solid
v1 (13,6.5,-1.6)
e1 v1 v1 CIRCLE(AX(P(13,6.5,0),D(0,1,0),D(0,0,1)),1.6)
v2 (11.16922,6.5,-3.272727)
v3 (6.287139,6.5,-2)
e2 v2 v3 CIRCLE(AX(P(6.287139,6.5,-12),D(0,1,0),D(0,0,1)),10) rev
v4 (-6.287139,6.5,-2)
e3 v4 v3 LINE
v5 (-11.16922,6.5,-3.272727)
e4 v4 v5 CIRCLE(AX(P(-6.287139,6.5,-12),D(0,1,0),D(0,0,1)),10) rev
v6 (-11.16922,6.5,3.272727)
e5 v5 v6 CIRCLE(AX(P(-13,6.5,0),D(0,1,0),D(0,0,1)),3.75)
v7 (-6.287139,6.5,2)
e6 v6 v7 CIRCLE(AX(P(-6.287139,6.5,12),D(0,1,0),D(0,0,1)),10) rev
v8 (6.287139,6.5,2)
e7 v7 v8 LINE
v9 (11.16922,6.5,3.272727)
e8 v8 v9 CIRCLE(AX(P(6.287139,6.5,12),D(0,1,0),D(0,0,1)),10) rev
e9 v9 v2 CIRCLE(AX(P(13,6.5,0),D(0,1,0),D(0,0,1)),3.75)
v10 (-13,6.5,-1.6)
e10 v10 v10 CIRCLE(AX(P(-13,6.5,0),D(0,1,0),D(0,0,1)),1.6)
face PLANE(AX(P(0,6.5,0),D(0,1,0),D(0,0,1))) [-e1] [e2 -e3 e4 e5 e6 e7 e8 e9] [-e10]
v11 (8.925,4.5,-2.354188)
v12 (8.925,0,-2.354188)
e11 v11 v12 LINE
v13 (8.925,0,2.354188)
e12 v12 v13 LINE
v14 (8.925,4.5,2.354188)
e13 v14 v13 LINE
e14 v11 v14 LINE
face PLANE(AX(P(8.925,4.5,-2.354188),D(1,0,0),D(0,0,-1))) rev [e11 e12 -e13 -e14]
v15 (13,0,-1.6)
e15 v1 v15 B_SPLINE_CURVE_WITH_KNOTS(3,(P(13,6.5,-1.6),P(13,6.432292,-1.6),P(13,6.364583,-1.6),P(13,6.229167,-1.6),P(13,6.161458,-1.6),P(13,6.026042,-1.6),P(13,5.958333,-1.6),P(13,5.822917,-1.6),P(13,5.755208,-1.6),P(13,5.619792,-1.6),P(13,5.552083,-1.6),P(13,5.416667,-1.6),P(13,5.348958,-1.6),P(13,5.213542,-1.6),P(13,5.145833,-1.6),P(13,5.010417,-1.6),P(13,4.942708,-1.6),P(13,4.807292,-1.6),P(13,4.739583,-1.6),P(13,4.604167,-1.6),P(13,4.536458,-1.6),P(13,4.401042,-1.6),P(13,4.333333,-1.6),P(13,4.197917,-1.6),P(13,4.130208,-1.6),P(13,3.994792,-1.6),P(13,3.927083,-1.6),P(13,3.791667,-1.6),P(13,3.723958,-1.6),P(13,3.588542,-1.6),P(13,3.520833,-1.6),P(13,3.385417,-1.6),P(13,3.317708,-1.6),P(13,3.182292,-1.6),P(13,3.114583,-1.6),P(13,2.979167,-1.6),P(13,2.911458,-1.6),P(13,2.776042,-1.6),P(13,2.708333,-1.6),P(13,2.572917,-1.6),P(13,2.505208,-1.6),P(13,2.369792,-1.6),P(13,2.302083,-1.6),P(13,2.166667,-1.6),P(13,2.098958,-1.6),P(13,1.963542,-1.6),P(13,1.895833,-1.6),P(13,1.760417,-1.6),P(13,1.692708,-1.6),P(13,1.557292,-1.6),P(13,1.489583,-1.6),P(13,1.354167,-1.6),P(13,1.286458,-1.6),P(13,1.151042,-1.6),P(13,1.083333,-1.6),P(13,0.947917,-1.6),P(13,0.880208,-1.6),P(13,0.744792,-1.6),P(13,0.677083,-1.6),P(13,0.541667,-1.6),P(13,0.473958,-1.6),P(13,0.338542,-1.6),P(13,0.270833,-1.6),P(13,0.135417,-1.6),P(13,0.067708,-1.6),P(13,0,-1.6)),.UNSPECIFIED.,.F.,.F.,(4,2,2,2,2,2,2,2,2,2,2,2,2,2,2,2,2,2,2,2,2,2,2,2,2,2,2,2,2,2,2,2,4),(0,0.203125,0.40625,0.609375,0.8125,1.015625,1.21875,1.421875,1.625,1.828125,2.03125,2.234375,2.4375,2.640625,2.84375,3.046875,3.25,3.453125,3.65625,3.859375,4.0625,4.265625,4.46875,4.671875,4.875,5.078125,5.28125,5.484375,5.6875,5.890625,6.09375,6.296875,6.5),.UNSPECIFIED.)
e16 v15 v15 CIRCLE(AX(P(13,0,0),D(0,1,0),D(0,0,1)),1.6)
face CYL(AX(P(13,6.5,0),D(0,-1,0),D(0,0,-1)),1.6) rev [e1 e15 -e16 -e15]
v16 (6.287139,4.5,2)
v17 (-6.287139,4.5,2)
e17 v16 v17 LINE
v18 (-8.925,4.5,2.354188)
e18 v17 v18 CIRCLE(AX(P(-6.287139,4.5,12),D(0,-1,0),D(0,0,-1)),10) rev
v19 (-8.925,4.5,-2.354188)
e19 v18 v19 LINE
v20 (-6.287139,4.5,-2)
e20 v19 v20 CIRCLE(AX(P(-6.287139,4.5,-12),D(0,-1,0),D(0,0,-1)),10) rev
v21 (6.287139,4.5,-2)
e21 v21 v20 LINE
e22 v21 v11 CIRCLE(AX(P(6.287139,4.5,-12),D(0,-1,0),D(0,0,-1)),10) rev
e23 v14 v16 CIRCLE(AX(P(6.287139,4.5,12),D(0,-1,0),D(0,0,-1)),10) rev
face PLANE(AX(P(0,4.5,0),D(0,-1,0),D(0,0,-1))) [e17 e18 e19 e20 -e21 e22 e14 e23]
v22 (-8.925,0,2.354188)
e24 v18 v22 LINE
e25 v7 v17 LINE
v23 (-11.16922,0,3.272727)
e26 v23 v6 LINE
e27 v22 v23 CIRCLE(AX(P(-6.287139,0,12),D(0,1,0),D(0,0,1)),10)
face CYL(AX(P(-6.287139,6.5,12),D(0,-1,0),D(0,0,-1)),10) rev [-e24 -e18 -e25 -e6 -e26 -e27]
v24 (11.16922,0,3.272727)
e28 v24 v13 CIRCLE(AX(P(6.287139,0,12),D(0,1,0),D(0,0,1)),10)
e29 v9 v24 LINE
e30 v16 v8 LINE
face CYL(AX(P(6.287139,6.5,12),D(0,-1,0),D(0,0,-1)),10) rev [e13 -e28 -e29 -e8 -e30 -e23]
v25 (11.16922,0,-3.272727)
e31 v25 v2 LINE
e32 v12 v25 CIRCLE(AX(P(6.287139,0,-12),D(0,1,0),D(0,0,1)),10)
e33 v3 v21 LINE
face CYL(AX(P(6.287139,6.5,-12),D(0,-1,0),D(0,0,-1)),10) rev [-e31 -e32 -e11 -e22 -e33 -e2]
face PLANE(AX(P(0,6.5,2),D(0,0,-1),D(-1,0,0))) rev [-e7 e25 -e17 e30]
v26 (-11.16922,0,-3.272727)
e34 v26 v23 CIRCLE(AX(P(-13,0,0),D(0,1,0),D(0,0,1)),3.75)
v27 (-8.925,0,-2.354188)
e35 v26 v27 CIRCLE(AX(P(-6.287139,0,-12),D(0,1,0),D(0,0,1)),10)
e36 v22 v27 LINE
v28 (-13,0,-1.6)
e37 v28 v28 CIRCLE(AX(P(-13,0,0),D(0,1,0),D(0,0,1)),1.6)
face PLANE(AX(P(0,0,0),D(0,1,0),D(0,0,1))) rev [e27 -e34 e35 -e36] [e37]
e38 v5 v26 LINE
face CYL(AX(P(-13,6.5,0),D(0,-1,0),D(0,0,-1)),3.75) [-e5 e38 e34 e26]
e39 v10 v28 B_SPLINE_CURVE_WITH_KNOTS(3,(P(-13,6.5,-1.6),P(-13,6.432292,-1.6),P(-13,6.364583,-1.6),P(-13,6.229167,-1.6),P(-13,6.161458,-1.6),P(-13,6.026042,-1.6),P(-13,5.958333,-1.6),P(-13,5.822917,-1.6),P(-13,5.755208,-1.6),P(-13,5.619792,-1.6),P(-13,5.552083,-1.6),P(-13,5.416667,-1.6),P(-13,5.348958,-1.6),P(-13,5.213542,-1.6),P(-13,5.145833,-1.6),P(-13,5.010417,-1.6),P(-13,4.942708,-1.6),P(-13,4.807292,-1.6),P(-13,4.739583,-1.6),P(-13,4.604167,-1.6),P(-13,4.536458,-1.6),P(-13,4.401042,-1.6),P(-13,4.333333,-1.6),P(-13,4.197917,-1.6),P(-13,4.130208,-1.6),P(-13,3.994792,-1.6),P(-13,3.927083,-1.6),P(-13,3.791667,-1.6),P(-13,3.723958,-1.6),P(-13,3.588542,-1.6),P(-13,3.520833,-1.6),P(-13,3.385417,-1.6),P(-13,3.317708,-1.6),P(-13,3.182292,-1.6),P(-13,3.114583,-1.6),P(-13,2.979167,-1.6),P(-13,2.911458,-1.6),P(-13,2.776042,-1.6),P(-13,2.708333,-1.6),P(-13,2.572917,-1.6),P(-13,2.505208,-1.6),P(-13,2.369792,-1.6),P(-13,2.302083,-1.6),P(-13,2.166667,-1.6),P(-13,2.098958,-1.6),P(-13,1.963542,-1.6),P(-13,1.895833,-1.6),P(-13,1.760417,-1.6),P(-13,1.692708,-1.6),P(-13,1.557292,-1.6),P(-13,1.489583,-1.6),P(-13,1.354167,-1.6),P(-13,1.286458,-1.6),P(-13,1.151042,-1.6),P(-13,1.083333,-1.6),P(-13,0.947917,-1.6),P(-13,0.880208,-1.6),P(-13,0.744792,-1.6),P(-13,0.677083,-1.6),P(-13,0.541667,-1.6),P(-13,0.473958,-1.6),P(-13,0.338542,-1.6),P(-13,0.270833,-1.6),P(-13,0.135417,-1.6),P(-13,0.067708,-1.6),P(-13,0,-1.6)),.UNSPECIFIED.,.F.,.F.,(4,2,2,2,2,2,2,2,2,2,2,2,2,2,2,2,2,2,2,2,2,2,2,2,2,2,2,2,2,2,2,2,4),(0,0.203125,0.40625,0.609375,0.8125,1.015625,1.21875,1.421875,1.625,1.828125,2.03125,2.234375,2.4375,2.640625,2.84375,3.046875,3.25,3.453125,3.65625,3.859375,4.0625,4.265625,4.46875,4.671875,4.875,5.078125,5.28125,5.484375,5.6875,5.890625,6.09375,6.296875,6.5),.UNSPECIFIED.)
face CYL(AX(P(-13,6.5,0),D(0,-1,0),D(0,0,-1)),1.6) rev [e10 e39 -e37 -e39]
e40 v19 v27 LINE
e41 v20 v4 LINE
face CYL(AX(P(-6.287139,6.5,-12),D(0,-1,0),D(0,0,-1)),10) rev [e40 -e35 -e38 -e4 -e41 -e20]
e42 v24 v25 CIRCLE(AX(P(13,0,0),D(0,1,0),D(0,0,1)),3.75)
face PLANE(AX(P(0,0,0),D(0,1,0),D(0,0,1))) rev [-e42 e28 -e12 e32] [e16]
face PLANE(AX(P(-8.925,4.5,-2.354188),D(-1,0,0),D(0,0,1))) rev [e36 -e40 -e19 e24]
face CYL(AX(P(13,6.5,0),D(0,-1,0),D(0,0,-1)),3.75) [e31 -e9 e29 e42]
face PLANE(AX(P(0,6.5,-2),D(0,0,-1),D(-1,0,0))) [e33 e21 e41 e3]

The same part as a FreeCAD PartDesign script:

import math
import FreeCAD as App
import Part
import Sketcher
from FreeCAD import Vector
Q = App.Units.Quantity


def edges_at(feature, points):
    """Names of the edges that pass closest to the given points."""
    edges = feature.Shape.Edges
    near = lambda p: min(range(len(edges)), key=lambda i: edges[i].distToShape(Part.Vertex(*p))[0])
    return sorted({f"Edge{near(p) + 1}" for p in points})


def add_polygon(sketch, points):
    """Adds a closed chain of lines whose ends are joined by coincident constraints."""
    first, n = sketch.GeometryCount, len(points)
    for a, b in zip(points, points[1:] + points[:1]):
        sketch.addGeometry(Part.LineSegment(App.Vector(*a, 0), App.Vector(*b, 0)), False)
    for i in range(n):
        sketch.addConstraint(Sketcher.Constraint("Coincident", first + i, 2, first + (i + 1) % n, 1))

doc = App.newDocument("Part")
params = doc.addObject("Spreadsheet::Sheet", "Params")
for row, (alias, value) in enumerate([
    ("sketch1_diameter", "3.2 mm"),
    ("sketch1_radius", "3.75 mm"),
    ("pad1_length", "6.5 mm"),
    ("fillet_radius", "10 mm"),
    ("sketch2_width", "17.85 mm"),
    ("pocket1_length", "4.5 mm"),
], start=1):
    params.set(f"A{row}", alias)
    params.set(f"B{row}", "=" + value)
    params.setAlias(f"B{row}", alias)

body = doc.addObject("PartDesign::Body", "Body")

# Sketch on XZ plane
sketch1 = doc.addObject("Sketcher::SketchObject", "Sketch")
body.addObject(sketch1)
sketch1.AttachmentSupport = (doc.XZ_Plane, [""])
sketch1.MapMode = "FlatFace"
sketch1.addGeometry([
    Part.LineSegment(Vector(9.8, -2, 0), Vector(-9.8, -2, 0)),  # 0
    Part.ArcOfCircle(Part.Circle(Vector(-13, 0, 0), Vector(0, 0, 1), 3.8), math.radians(32), math.radians(328)),  # 1
    Part.LineSegment(Vector(-9.8, 2, 0), Vector(9.8, 2, 0)),  # 2
    Part.ArcOfCircle(Part.Circle(Vector(13, 0, 0), Vector(0, 0, 1), 3.8), math.radians(-148), math.radians(148)),  # 3
    Part.Circle(Vector(-13, 0, 0), Vector(0, 0, 1), 1.6),  # 4
    Part.Circle(Vector(13, 0, 0), Vector(0, 0, 1), 1.6),  # 5
], False)
sketch1.addConstraint([
    Sketcher.Constraint("Coincident", 0, 2, 1, 2),
    Sketcher.Constraint("Coincident", 1, 1, 2, 1),
    Sketcher.Constraint("Coincident", 2, 2, 3, 2),
    Sketcher.Constraint("Coincident", 3, 1, 0, 1),
    Sketcher.Constraint("Horizontal", 0),
    Sketcher.Constraint("Horizontal", 2),
    Sketcher.Constraint("Coincident", 4, 3, 1, 3),
    Sketcher.Constraint("Coincident", 5, 3, 3, 3),
    Sketcher.Constraint("Equal", 1, 3),
    Sketcher.Constraint("Equal", 4, 5),
    Sketcher.Constraint("Symmetric", 1, 3, 3, 3, -1, 1),
    Sketcher.Constraint("Symmetric", 0, 2, 1, 1, -1),
    Sketcher.Constraint("Diameter", 4, Q("3.2 mm")),
    Sketcher.Constraint("Radius", 1, Q("3.75 mm")),
    Sketcher.Constraint("DistanceX", 1, 3, -1, 1, Q("13 mm")),
    Sketcher.Constraint("DistanceY", 0, 2, -1, 1, Q("2 mm")),
])
sketch1.setExpression("Constraints[12]", "Params.sketch1_diameter")
sketch1.setExpression("Constraints[13]", "Params.sketch1_radius")
pad1 = doc.addObject("PartDesign::Pad", "Pad")
body.addObject(pad1)
pad1.Profile = sketch1
pad1.setExpression("Length", "Params.pad1_length")
pad1.Reversed = True
doc.recompute()

fillet = doc.addObject("PartDesign::Fillet", "Fillet")
body.addObject(fillet)
fillet.Base = (pad1, edges_at(pad1, [
    (-9.828, 3.25, -2),
    (9.828, 3.25, -2),
    (9.828, 3.25, 2),
    (-9.828, 3.25, 2),
]))
fillet.setExpression("Radius", "Params.fillet_radius")

# Sketch on XZ plane
sketch2 = doc.addObject("Sketcher::SketchObject", "Sketch001")
body.addObject(sketch2)
sketch2.AttachmentSupport = (doc.XZ_Plane, [""])
sketch2.MapMode = "FlatFace"
add_polygon(sketch2, [(8.9, -2.4), (8.9, 2.4), (-8.9, 2.4), (-8.9, -2.4)])  # lines 0-3
sketch2.addConstraint([
    Sketcher.Constraint("Vertical", 0),
    Sketcher.Constraint("Horizontal", 1),
    Sketcher.Constraint("Vertical", 2),
    Sketcher.Constraint("Horizontal", 3),
    Sketcher.Constraint("Symmetric", 0, 2, 2, 2, -1, 1),
    Sketcher.Constraint("DistanceX", 1, 2, 1, 1, Q("17.85 mm")),
    Sketcher.Constraint("DistanceY", 0, 1, 0, 2, Q("4.708376 mm")),
])
sketch2.setExpression("Constraints[9]", "Params.sketch2_width")
pocket1 = doc.addObject("PartDesign::Pocket", "Pocket")
body.addObject(pocket1)
pocket1.Profile = sketch2
pocket1.setExpression("Length", "Params.pocket1_length")

doc.recompute()
